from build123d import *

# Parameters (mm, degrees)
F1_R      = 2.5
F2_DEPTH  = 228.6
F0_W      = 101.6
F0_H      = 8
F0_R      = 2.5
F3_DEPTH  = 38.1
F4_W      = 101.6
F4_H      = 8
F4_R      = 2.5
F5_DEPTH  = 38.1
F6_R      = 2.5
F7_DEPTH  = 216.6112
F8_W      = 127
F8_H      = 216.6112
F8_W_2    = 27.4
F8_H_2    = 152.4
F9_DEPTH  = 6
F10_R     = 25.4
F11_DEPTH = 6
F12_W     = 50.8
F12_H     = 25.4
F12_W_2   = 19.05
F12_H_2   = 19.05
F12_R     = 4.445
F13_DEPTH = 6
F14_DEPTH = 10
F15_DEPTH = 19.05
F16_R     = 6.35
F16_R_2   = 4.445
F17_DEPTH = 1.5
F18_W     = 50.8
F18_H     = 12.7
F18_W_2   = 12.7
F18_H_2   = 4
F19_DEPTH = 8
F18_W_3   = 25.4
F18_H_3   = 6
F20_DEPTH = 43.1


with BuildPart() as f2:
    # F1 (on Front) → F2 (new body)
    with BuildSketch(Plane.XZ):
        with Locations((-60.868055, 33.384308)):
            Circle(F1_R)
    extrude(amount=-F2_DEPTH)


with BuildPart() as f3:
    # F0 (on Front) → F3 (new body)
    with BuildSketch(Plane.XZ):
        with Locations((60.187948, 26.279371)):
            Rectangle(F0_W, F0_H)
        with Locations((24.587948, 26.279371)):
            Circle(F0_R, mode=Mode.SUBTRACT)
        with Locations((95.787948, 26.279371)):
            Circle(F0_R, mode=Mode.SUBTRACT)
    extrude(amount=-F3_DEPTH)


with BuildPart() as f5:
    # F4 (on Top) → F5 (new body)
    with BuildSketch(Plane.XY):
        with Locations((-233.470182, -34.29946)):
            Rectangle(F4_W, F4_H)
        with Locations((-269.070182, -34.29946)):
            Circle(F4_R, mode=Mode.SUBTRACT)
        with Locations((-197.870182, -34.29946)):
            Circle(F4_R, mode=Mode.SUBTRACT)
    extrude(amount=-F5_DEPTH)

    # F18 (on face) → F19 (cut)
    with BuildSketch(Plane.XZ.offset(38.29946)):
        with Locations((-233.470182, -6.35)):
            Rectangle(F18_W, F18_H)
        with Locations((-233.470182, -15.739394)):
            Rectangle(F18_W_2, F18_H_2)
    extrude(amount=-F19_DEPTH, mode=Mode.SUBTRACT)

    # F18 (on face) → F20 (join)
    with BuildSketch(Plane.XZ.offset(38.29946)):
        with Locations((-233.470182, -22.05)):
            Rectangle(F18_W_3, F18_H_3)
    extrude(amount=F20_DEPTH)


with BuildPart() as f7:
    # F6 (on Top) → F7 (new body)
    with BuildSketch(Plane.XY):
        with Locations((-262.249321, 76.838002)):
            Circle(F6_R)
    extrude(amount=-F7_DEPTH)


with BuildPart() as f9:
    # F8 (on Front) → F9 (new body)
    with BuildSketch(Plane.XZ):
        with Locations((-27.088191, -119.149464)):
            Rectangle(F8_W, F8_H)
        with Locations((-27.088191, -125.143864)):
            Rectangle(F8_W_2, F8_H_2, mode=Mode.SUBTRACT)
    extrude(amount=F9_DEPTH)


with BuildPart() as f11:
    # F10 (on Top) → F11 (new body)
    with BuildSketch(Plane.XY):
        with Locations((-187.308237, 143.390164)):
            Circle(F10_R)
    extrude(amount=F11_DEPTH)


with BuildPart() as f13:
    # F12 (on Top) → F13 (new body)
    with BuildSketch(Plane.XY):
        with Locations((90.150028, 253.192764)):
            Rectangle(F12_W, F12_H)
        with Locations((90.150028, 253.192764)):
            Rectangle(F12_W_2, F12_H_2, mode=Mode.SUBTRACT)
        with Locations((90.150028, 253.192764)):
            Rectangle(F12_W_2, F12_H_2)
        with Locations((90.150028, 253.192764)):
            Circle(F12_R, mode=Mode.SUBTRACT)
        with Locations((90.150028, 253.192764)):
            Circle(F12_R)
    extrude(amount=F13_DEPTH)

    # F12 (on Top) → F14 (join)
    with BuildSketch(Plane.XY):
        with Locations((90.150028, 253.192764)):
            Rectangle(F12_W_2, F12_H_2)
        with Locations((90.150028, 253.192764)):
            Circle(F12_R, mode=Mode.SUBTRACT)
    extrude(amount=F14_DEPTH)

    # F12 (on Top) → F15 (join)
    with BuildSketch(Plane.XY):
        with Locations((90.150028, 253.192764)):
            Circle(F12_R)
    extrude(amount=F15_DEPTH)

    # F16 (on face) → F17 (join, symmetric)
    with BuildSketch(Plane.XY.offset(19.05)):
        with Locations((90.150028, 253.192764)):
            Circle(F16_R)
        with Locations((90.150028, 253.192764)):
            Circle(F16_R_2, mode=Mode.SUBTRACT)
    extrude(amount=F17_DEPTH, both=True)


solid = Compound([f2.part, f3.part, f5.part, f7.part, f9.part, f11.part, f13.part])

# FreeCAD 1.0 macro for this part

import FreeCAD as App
import Part
import Sketcher
from FreeCAD import Vector
Q = App.Units.Quantity


def add_polygon(sketch, points):
    """Adds a closed chain of lines whose ends are joined by coincident constraints."""
    first, n = sketch.GeometryCount, len(points)
    for a, b in zip(points, points[1:] + points[:1]):
        sketch.addGeometry(Part.LineSegment(App.Vector(*a, 0), App.Vector(*b, 0)), False)
    for i in range(n):
        sketch.addConstraint(Sketcher.Constraint("Coincident", first + i, 2, first + (i + 1) % n, 1))

doc = App.newDocument("Part")
params = doc.addObject("Spreadsheet::Sheet", "Params")
for row, (alias, value) in enumerate([
    ("pad1_length", "9 in"),
    ("sketch2_width", "4 in"),
    ("pad2_length", "1.5 in"),
    ("sketch3_width", "4 in"),
    ("pad3_length", "1.5 in"),
    ("sketch4_width", "2 in"),
    ("sketch4_width2", "0.5 in"),
    ("pocket1_length", "8 mm"),
    ("sketch5_width", "1 in"),
    ("pad4_length", "43.1 mm"),
    ("pad5_length", "8.528 in"),
    ("sketch7_width", "5 in"),
    ("sketch7_height", "6 in"),
    ("sketch7_height2", "8.528 in"),
    ("pad6_length", "6 mm"),
    ("sketch8_diameter", "2 in"),
    ("pad7_length", "6 mm"),
    ("sketch9_width", "2 in"),
    ("sketch9_height", "1 in"),
    ("pad8_length", "6 mm"),
    ("sketch10_diameter", "0.35 in"),
    ("sketch10_width", "0.75 in"),
    ("pad9_length", "10 mm"),
    ("sketch11_diameter", "0.35 in"),
    ("pad10_length", "0.75 in"),
    ("sketch12_diameter", "0.5 in"),
    ("sketch12_diameter2", "0.35 in"),
    ("pad11_length", "3 mm"),
], start=1):
    params.set(f"A{row}", alias)
    params.set(f"B{row}", "=" + value)
    params.setAlias(f"B{row}", alias)

body = doc.addObject("PartDesign::Body", "Body")

sketch1 = body.newObject("Sketcher::SketchObject", "Sketch")
sketch1.AttachmentSupport = (doc.getObject("XZ_Plane"), [""])
sketch1.MapMode = "FlatFace"
sketch1.addGeometry(Part.Circle(Vector(-60.868055, 33.384308, 0), Vector(0, 0, 1), 2.5), False)
sketch1.addConstraint(Sketcher.Constraint("Diameter", 0, 5.0))
sketch1.addConstraint(Sketcher.Constraint("DistanceX", 0, 3, -1, 1, 60.868055))
sketch1.addConstraint(Sketcher.Constraint("DistanceY", -1, 1, 0, 3, 33.384308))
pad1 = body.newObject("PartDesign::Pad", "Pad")
pad1.Profile = sketch1
pad1.setExpression("Length", "Params.pad1_length")
pad1.Reversed = True
body2 = doc.addObject("PartDesign::Body", "Body001")

sketch2 = body2.newObject("Sketcher::SketchObject", "Sketch001")
sketch2.AttachmentSupport = (doc.getObject("XZ_Plane001"), [""])
sketch2.MapMode = "FlatFace"
add_polygon(sketch2, [(9.387948, 30.279371), (9.387948, 22.279371), (110.987948, 22.279371), (110.987948, 30.279371)])
sketch2.addGeometry(Part.Circle(Vector(24.587948, 26.279371, 0), Vector(0, 0, 1), 2.5), False)
sketch2.addGeometry(Part.Circle(Vector(95.787948, 26.279371, 0), Vector(0, 0, 1), 2.5), False)
sketch2.addConstraint(Sketcher.Constraint("Vertical", 0))
sketch2.addConstraint(Sketcher.Constraint("Horizontal", 1))
sketch2.addConstraint(Sketcher.Constraint("Vertical", 2))
sketch2.addConstraint(Sketcher.Constraint("Horizontal", 3))
sketch2.addConstraint(Sketcher.Constraint("Equal", 4, 5))
sketch2.addConstraint(Sketcher.Constraint("Horizontal", 4, 3, 5, 3))
sketch2.addConstraint(Sketcher.Constraint("DistanceX", 1, 1, 1, 2, Q("4 in")))
sketch2.addConstraint(Sketcher.Constraint("Diameter", 4, 5.0))
sketch2.addConstraint(Sketcher.Constraint("DistanceY", 0, 2, 0, 1, 8.0))
sketch2.addConstraint(Sketcher.Constraint("DistanceX", 4, 3, 5, 3, 71.2))
sketch2.addConstraint(Sketcher.Constraint("DistanceX", 0, 2, 4, 3, 15.2))
sketch2.addConstraint(Sketcher.Constraint("DistanceY", 0, 2, 4, 3, 4.0))
sketch2.addConstraint(Sketcher.Constraint("DistanceX", -1, 1, 4, 3, 24.587948))
sketch2.addConstraint(Sketcher.Constraint("DistanceY", -1, 1, 4, 3, 26.279371))
sketch2.setExpression("Constraints[10]", "Params.sketch2_width")
pad2 = body2.newObject("PartDesign::Pad", "Pad001")
pad2.Profile = sketch2
pad2.setExpression("Length", "Params.pad2_length")
pad2.Reversed = True
body3 = doc.addObject("PartDesign::Body", "Body002")

sketch3 = body3.newObject("Sketcher::SketchObject", "Sketch002")
sketch3.AttachmentSupport = (doc.getObject("XY_Plane002"), [""])
sketch3.MapMode = "FlatFace"
add_polygon(sketch3, [(-284.270182, -30.29946), (-284.270182, -38.29946), (-182.670182, -38.29946), (-182.670182, -30.29946)])
sketch3.addGeometry(Part.Circle(Vector(-269.070182, -34.29946, 0), Vector(0, 0, 1), 2.5), False)
sketch3.addGeometry(Part.Circle(Vector(-197.870182, -34.29946, 0), Vector(0, 0, 1), 2.5), False)
sketch3.addConstraint(Sketcher.Constraint("Vertical", 0))
sketch3.addConstraint(Sketcher.Constraint("Horizontal", 1))
sketch3.addConstraint(Sketcher.Constraint("Vertical", 2))
sketch3.addConstraint(Sketcher.Constraint("Horizontal", 3))
sketch3.addConstraint(Sketcher.Constraint("Equal", 4, 5))
sketch3.addConstraint(Sketcher.Constraint("Horizontal", 4, 3, 5, 3))
sketch3.addConstraint(Sketcher.Constraint("DistanceX", 1, 1, 1, 2, Q("4 in")))
sketch3.addConstraint(Sketcher.Constraint("Diameter", 4, 5.0))
sketch3.addConstraint(Sketcher.Constraint("DistanceY", 0, 2, 0, 1, 8.0))
sketch3.addConstraint(Sketcher.Constraint("DistanceX", 4, 3, 5, 3, 71.2))
sketch3.addConstraint(Sketcher.Constraint("DistanceX", 0, 2, 4, 3, 15.2))
sketch3.addConstraint(Sketcher.Constraint("DistanceY", 0, 2, 4, 3, 4.0))
sketch3.addConstraint(Sketcher.Constraint("DistanceX", 4, 3, -1, 1, 269.070182))
sketch3.addConstraint(Sketcher.Constraint("DistanceY", 4, 3, -1, 1, 34.29946))
sketch3.setExpression("Constraints[10]", "Params.sketch3_width")
pad3 = body3.newObject("PartDesign::Pad", "Pad002")
pad3.Profile = sketch3
pad3.setExpression("Length", "Params.pad3_length")
pad3.Reversed = True

sketch4 = body3.newObject("Sketcher::SketchObject", "Sketch003")
sketch4.AttachmentSupport = (doc.getObject("XZ_Plane002"), [""])
sketch4.MapMode = "FlatFace"
sketch4.AttachmentOffset = App.Placement(Vector(0, 0, 38.29946), App.Rotation())
add_polygon(sketch4, [(-258.870182, 0), (-258.870182, -12.7), (-208.070182, -12.7), (-208.070182, 0)])
add_polygon(sketch4, [(-239.820182, -13.739394), (-239.820182, -17.739394), (-227.120182, -17.739394), (-227.120182, -13.739394)])
sketch4.addConstraint(Sketcher.Constraint("Vertical", 0))
sketch4.addConstraint(Sketcher.Constraint("Horizontal", 1))
sketch4.addConstraint(Sketcher.Constraint("Vertical", 2))
sketch4.addConstraint(Sketcher.Constraint("Horizontal", 3))
sketch4.addConstraint(Sketcher.Constraint("Vertical", 4))
sketch4.addConstraint(Sketcher.Constraint("Horizontal", 5))
sketch4.addConstraint(Sketcher.Constraint("Vertical", 6))
sketch4.addConstraint(Sketcher.Constraint("Horizontal", 7))
sketch4.addConstraint(Sketcher.Constraint("PointOnObject", 2, 2, -1))
sketch4.addConstraint(Sketcher.Constraint("Equal", 7, 0))
sketch4.addConstraint(Sketcher.Constraint("DistanceX", 1, 1, 1, 2, Q("2 in")))
sketch4.addConstraint(Sketcher.Constraint("DistanceX", 5, 1, 5, 2, Q("0.5 in")))
sketch4.addConstraint(Sketcher.Constraint("DistanceX", 0, 2, 4, 2, Q("0.75 in")))
sketch4.addConstraint(Sketcher.Constraint("DistanceY", 4, 2, 4, 1, 4.0))
sketch4.addConstraint(Sketcher.Constraint("DistanceX", 0, 2, -1, 1, 258.870182))
sketch4.addConstraint(Sketcher.Constraint("DistanceY", 4, 2, -1, 1, 17.739394))
sketch4.setExpression("Constraints[18]", "Params.sketch4_width")
sketch4.setExpression("Constraints[19]", "Params.sketch4_width2")
pocket1 = body3.newObject("PartDesign::Pocket", "Pocket")
pocket1.Profile = sketch4
pocket1.setExpression("Length", "Params.pocket1_length")

sketch5 = body3.newObject("Sketcher::SketchObject", "Sketch004")
sketch5.AttachmentSupport = (doc.getObject("XZ_Plane002"), [""])
sketch5.MapMode = "FlatFace"
sketch5.AttachmentOffset = App.Placement(Vector(0, 0, 38.29946), App.Rotation())
add_polygon(sketch5, [(-246.170182, -19.05), (-246.170182, -25.05), (-220.770182, -25.05), (-220.770182, -19.05)])
sketch5.addConstraint(Sketcher.Constraint("Vertical", 0))
sketch5.addConstraint(Sketcher.Constraint("Horizontal", 1))
sketch5.addConstraint(Sketcher.Constraint("Vertical", 2))
sketch5.addConstraint(Sketcher.Constraint("Horizontal", 3))
sketch5.addConstraint(Sketcher.Constraint("DistanceX", 1, 1, 1, 2, Q("1 in")))
sketch5.addConstraint(Sketcher.Constraint("DistanceY", 2, 2, -1, 1, Q("0.75 in")))
sketch5.addConstraint(Sketcher.Constraint("DistanceY", 0, 2, 0, 1, 6.0))
sketch5.addConstraint(Sketcher.Constraint("DistanceX", 1, 2, -1, 1, 220.770182))
sketch5.setExpression("Constraints[8]", "Params.sketch5_width")
pad4 = body3.newObject("PartDesign::Pad", "Pad003")
pad4.Profile = sketch5
pad4.setExpression("Length", "Params.pad4_length")
body4 = doc.addObject("PartDesign::Body", "Body003")

sketch6 = body4.newObject("Sketcher::SketchObject", "Sketch005")
sketch6.AttachmentSupport = (doc.getObject("XY_Plane003"), [""])
sketch6.MapMode = "FlatFace"
sketch6.addGeometry(Part.Circle(Vector(-262.249321, 76.838002, 0), Vector(0, 0, 1), 2.5), False)
sketch6.addConstraint(Sketcher.Constraint("Diameter", 0, 5.0))
sketch6.addConstraint(Sketcher.Constraint("DistanceX", 0, 3, -1, 1, 262.249321))
sketch6.addConstraint(Sketcher.Constraint("DistanceY", -1, 1, 0, 3, 76.838002))
pad5 = body4.newObject("PartDesign::Pad", "Pad004")
pad5.Profile = sketch6
pad5.setExpression("Length", "Params.pad5_length")
pad5.Reversed = True
body5 = doc.addObject("PartDesign::Body", "Body004")

sketch7 = body5.newObject("Sketcher::SketchObject", "Sketch006")
sketch7.AttachmentSupport = (doc.getObject("XZ_Plane004"), [""])
sketch7.MapMode = "FlatFace"
add_polygon(sketch7, [(-90.588191, -10.843864), (-90.588191, -227.455064), (36.411809, -227.455064), (36.411809, -10.843864)])
add_polygon(sketch7, [(-13.388191, -201.343864), (-40.788191, -201.343864), (-40.788191, -48.943864), (-13.388191, -48.943864)])
sketch7.addConstraint(Sketcher.Constraint("Vertical", 0))
sketch7.addConstraint(Sketcher.Constraint("Horizontal", 1))
sketch7.addConstraint(Sketcher.Constraint("Vertical", 2))
sketch7.addConstraint(Sketcher.Constraint("Horizontal", 3))
sketch7.addConstraint(Sketcher.Constraint("Horizontal", 4))
sketch7.addConstraint(Sketcher.Constraint("Vertical", 5))
sketch7.addConstraint(Sketcher.Constraint("Horizontal", 6))
sketch7.addConstraint(Sketcher.Constraint("Vertical", 7))
sketch7.addConstraint(Sketcher.Constraint("DistanceX", 1, 1, 1, 2, Q("5 in")))
sketch7.addConstraint(Sketcher.Constraint("DistanceY", 5, 1, 5, 2, Q("6 in")))
sketch7.addConstraint(Sketcher.Constraint("DistanceY", 4, 2, 3, 2, Q("7.5 in")))
sketch7.addConstraint(Sketcher.Constraint("DistanceY", 0, 2, 0, 1, Q("8.528 in")))
sketch7.addConstraint(Sketcher.Constraint("DistanceX", 4, 2, 4, 1, 27.4))
sketch7.addConstraint(Sketcher.Constraint("DistanceX", 0, 2, 4, 2, 49.8))
sketch7.addConstraint(Sketcher.Constraint("DistanceX", 0, 2, -1, 1, 90.588191))
sketch7.addConstraint(Sketcher.Constraint("DistanceY", 0, 2, -1, 1, 227.455064))
sketch7.setExpression("Constraints[16]", "Params.sketch7_width")
sketch7.setExpression("Constraints[17]", "Params.sketch7_height")
sketch7.setExpression("Constraints[19]", "Params.sketch7_height2")
pad6 = body5.newObject("PartDesign::Pad", "Pad005")
pad6.Profile = sketch7
pad6.setExpression("Length", "Params.pad6_length")
body6 = doc.addObject("PartDesign::Body", "Body005")

sketch8 = body6.newObject("Sketcher::SketchObject", "Sketch007")
sketch8.AttachmentSupport = (doc.getObject("XY_Plane005"), [""])
sketch8.MapMode = "FlatFace"
sketch8.addGeometry(Part.Circle(Vector(-187.308237, 143.390164, 0), Vector(0, 0, 1), 25.4), False)
sketch8.addConstraint(Sketcher.Constraint("Diameter", 0, Q("2 in")))
sketch8.addConstraint(Sketcher.Constraint("DistanceX", 0, 3, -1, 1, 187.308237))
sketch8.addConstraint(Sketcher.Constraint("DistanceY", -1, 1, 0, 3, 143.390164))
sketch8.setExpression("Constraints[0]", "Params.sketch8_diameter")
pad7 = body6.newObject("PartDesign::Pad", "Pad006")
pad7.Profile = sketch8
pad7.setExpression("Length", "Params.pad7_length")
body7 = doc.addObject("PartDesign::Body", "Body006")

sketch9 = body7.newObject("Sketcher::SketchObject", "Sketch008")
sketch9.AttachmentSupport = (doc.getObject("XY_Plane006"), [""])
sketch9.MapMode = "FlatFace"
add_polygon(sketch9, [(64.750028, 265.892764), (64.750028, 240.492764), (115.550028, 240.492764), (115.550028, 265.892764)])
sketch9.addConstraint(Sketcher.Constraint("Vertical", 0))
sketch9.addConstraint(Sketcher.Constraint("Horizontal", 1))
sketch9.addConstraint(Sketcher.Constraint("Vertical", 2))
sketch9.addConstraint(Sketcher.Constraint("Horizontal", 3))
sketch9.addConstraint(Sketcher.Constraint("DistanceX", 1, 1, 1, 2, Q("2 in")))
sketch9.addConstraint(Sketcher.Constraint("DistanceY", 0, 2, 0, 1, Q("1 in")))
sketch9.addConstraint(Sketcher.Constraint("DistanceX", -1, 1, 0, 2, 64.750028))
sketch9.addConstraint(Sketcher.Constraint("DistanceY", -1, 1, 0, 2, 240.492764))
sketch9.setExpression("Constraints[8]", "Params.sketch9_width")
sketch9.setExpression("Constraints[9]", "Params.sketch9_height")
pad8 = body7.newObject("PartDesign::Pad", "Pad007")
pad8.Profile = sketch9
pad8.setExpression("Length", "Params.pad8_length")

sketch10 = body7.newObject("Sketcher::SketchObject", "Sketch009")
sketch10.AttachmentSupport = (doc.getObject("XY_Plane006"), [""])
sketch10.MapMode = "FlatFace"
add_polygon(sketch10, [(80.625028, 262.717764), (80.625028, 243.667764), (99.675028, 243.667764), (99.675028, 262.717764)])
sketch10.addGeometry(Part.Circle(Vector(90.150028, 253.192764, 0), Vector(0, 0, 1), 4.445), False)
sketch10.addConstraint(Sketcher.Constraint("Vertical", 0))
sketch10.addConstraint(Sketcher.Constraint("Horizontal", 1))
sketch10.addConstraint(Sketcher.Constraint("Vertical", 2))
sketch10.addConstraint(Sketcher.Constraint("Horizontal", 3))
sketch10.addConstraint(Sketcher.Constraint("Equal", 3, 0))
sketch10.addConstraint(Sketcher.Constraint("Diameter", 4, Q("0.35 in")))
sketch10.addConstraint(Sketcher.Constraint("DistanceX", 1, 1, 1, 2, Q("0.75 in")))
sketch10.addConstraint(Sketcher.Constraint("DistanceX", 0, 2, 4, 3, Q("0.375 in")))
sketch10.addConstraint(Sketcher.Constraint("DistanceY", 0, 2, 4, 3, Q("0.375 in")))
sketch10.addConstraint(Sketcher.Constraint("DistanceX", -1, 1, 4, 3, 90.150028))
sketch10.addConstraint(Sketcher.Constraint("DistanceY", -1, 1, 4, 3, 253.192764))
sketch10.setExpression("Constraints[9]", "Params.sketch10_diameter")
sketch10.setExpression("Constraints[10]", "Params.sketch10_width")
pad9 = body7.newObject("PartDesign::Pad", "Pad008")
pad9.Profile = sketch10
pad9.setExpression("Length", "Params.pad9_length")

sketch11 = body7.newObject("Sketcher::SketchObject", "Sketch010")
sketch11.AttachmentSupport = (doc.getObject("XY_Plane006"), [""])
sketch11.MapMode = "FlatFace"
sketch11.addGeometry(Part.Circle(Vector(90.150028, 253.192764, 0), Vector(0, 0, 1), 4.445), False)
sketch11.addConstraint(Sketcher.Constraint("Diameter", 0, Q("0.35 in")))
sketch11.addConstraint(Sketcher.Constraint("DistanceX", -1, 1, 0, 3, 90.150028))
sketch11.addConstraint(Sketcher.Constraint("DistanceY", -1, 1, 0, 3, 253.192764))
sketch11.setExpression("Constraints[0]", "Params.sketch11_diameter")
pad10 = body7.newObject("PartDesign::Pad", "Pad009")
pad10.Profile = sketch11
pad10.setExpression("Length", "Params.pad10_length")

sketch12 = body7.newObject("Sketcher::SketchObject", "Sketch011")
sketch12.AttachmentSupport = (doc.getObject("XY_Plane006"), [""])
sketch12.MapMode = "FlatFace"
sketch12.AttachmentOffset = App.Placement(Vector(0, 0, 0.75 * 25.4), App.Rotation())
sketch12.addGeometry(Part.Circle(Vector(90.150028, 253.192764, 0), Vector(0, 0, 1), 6.35), False)
sketch12.addGeometry(Part.Circle(Vector(90.150028, 253.192764, 0), Vector(0, 0, 1), 4.445), False)
sketch12.addConstraint(Sketcher.Constraint("Coincident", 1, 3, 0, 3))
sketch12.addConstraint(Sketcher.Constraint("Diameter", 0, Q("0.5 in")))
sketch12.addConstraint(Sketcher.Constraint("Diameter", 1, Q("0.35 in")))
sketch12.addConstraint(Sketcher.Constraint("DistanceX", -1, 1, 0, 3, 90.150028))
sketch12.addConstraint(Sketcher.Constraint("DistanceY", -1, 1, 0, 3, 253.192764))
sketch12.setExpression("Constraints[1]", "Params.sketch12_diameter")
sketch12.setExpression("Constraints[2]", "Params.sketch12_diameter2")
pad11 = body7.newObject("PartDesign::Pad", "Pad010")
pad11.Profile = sketch12
pad11.setExpression("Length", "Params.pad11_length")
pad11.Midplane = True

doc.recompute()
